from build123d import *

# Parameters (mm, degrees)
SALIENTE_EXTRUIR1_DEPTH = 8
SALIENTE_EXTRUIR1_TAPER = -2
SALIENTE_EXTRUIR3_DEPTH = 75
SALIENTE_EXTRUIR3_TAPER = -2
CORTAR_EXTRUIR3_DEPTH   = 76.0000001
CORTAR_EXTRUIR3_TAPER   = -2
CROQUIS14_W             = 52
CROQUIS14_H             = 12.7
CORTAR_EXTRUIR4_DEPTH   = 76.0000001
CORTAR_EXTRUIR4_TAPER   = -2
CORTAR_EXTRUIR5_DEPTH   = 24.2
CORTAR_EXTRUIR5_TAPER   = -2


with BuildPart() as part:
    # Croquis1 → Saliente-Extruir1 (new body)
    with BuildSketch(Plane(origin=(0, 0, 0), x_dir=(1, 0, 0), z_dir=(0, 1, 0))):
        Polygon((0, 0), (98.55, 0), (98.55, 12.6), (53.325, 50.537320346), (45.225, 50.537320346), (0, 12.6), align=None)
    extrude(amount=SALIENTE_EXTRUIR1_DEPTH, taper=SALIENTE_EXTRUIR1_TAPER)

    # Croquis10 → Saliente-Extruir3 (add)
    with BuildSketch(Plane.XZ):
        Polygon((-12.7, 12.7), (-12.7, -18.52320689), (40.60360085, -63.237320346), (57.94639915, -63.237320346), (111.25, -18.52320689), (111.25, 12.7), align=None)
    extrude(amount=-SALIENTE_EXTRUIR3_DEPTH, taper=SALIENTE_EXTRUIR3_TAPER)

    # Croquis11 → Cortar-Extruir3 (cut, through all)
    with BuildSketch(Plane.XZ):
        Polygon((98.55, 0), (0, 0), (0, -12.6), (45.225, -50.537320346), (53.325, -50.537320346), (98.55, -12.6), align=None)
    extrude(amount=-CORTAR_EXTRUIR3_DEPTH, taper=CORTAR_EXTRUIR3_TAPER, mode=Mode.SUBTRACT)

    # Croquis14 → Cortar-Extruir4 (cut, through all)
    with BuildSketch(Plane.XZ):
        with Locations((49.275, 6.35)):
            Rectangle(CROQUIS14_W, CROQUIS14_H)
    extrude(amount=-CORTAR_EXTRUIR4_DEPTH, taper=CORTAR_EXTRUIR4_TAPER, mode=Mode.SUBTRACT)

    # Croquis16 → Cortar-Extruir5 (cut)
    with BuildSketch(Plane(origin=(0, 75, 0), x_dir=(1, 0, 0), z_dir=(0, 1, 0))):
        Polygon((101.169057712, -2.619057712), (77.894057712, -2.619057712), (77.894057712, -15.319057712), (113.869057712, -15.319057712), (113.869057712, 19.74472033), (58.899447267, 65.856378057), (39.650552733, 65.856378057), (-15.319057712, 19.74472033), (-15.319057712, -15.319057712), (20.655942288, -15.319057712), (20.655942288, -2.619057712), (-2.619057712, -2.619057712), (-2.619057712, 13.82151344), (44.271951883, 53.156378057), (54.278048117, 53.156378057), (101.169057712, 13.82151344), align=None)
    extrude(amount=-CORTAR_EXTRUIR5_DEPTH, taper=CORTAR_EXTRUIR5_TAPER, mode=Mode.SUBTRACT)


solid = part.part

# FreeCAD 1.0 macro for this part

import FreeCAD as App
import Part
import Sketcher

V = App.Vector

doc = App.newDocument("Part")
body = doc.addObject("PartDesign::Body", "Body")

# Sketch on XZ plane
sketch1 = body.newObject("Sketcher::SketchObject", "Sketch")
sketch1.AttachmentSupport = (doc.getObject("XZ_Plane"), [""])
sketch1.MapMode = "FlatFace"
sketch1.addGeometry([
    Part.LineSegment(V(0, 0, 0), V(99, 0, 0)),  # 0
    Part.LineSegment(V(99, 0, 0), V(99, -13, 0)),  # 1
    Part.LineSegment(V(99, -13, 0), V(53, -51, 0)),  # 2
    Part.LineSegment(V(53, -51, 0), V(45, -51, 0)),  # 3
    Part.LineSegment(V(45, -51, 0), V(0, -13, 0)),  # 4
    Part.LineSegment(V(0, -13, 0), V(0, 0, 0)),  # 5
], False)
sketch1.addConstraint([
    Sketcher.Constraint("Coincident", 0, 2, 1, 1),
    Sketcher.Constraint("Coincident", 1, 2, 2, 1),
    Sketcher.Constraint("Coincident", 2, 2, 3, 1),
    Sketcher.Constraint("Coincident", 3, 2, 4, 1),
    Sketcher.Constraint("Coincident", 4, 2, 5, 1),
    Sketcher.Constraint("Coincident", 5, 2, 0, 1),
    Sketcher.Constraint("Horizontal", 0),
    Sketcher.Constraint("Vertical", 1),
    Sketcher.Constraint("Horizontal", 3),
    Sketcher.Constraint("Vertical", 5),
    Sketcher.Constraint("Coincident", 5, 2, -1, 1),
    Sketcher.Constraint("Horizontal", 1, 2, 4, 2),
    Sketcher.Constraint("Equal", 2, 4),
    Sketcher.Constraint("DistanceX", 3, 2, 3, 1, 8.1),
    Sketcher.Constraint("DistanceY", 1, 2, 1, 1, 12.6),
    Sketcher.Constraint("DistanceX", 0, 1, 0, 2, 98.55),
    Sketcher.Constraint("Distance", 2, 59.03),
])
pad1 = body.newObject("PartDesign::Pad", "Pad")
pad1.Profile = sketch1
pad1.Length = 8
pad1.Reversed = True
pad1.TaperAngle = 2

# Sketch on XZ plane
sketch2 = body.newObject("Sketcher::SketchObject", "Sketch001")
sketch2.AttachmentSupport = (doc.getObject("XZ_Plane"), [""])
sketch2.MapMode = "FlatFace"
sketch2.addGeometry([
    Part.LineSegment(V(-13, 13, 0), V(-13, -19, 0)),  # 0
    Part.LineSegment(V(-13, -19, 0), V(41, -63, 0)),  # 1
    Part.LineSegment(V(41, -63, 0), V(58, -63, 0)),  # 2
    Part.LineSegment(V(58, -63, 0), V(111, -19, 0)),  # 3
    Part.LineSegment(V(111, -19, 0), V(111, 13, 0)),  # 4
    Part.LineSegment(V(111, 13, 0), V(-13, 13, 0)),  # 5
], False)
sketch2.addConstraint([
    Sketcher.Constraint("Coincident", 0, 2, 1, 1),
    Sketcher.Constraint("Coincident", 1, 2, 2, 1),
    Sketcher.Constraint("Coincident", 2, 2, 3, 1),
    Sketcher.Constraint("Coincident", 3, 2, 4, 1),
    Sketcher.Constraint("Coincident", 4, 2, 5, 1),
    Sketcher.Constraint("Coincident", 5, 2, 0, 1),
    Sketcher.Constraint("Vertical", 0),
    Sketcher.Constraint("Horizontal", 2),
    Sketcher.Constraint("Vertical", 4),
    Sketcher.Constraint("Horizontal", 5),
    Sketcher.Constraint("Horizontal", 0, 2, 3, 2),
    Sketcher.Constraint("Equal", 1, 3),
    Sketcher.Constraint("DistanceX", 5, 2, 5, 1, 123.95),
    Sketcher.Constraint("DistanceX", 0, 2, -1, 1, 12.7),
    Sketcher.Constraint("DistanceY", -1, 1, 4, 2, 12.7),
    Sketcher.Constraint("DistanceX", 2, 1, 2, 2, 17.342798),
    Sketcher.Constraint("DistanceY", 0, 2, 0, 1, 31.223207),
    Sketcher.Constraint("DistanceY", 1, 2, -1, 1, 63.23732),
])
pad2 = body.newObject("PartDesign::Pad", "Pad001")
pad2.Profile = sketch2
pad2.Length = 75
pad2.Reversed = True
pad2.TaperAngle = 2

# Sketch on XZ plane
sketch3 = body.newObject("Sketcher::SketchObject", "Sketch002")
sketch3.AttachmentSupport = (doc.getObject("XZ_Plane"), [""])
sketch3.MapMode = "FlatFace"
sketch3.addGeometry([
    Part.LineSegment(V(99, 0, 0), V(0, 0, 0)),  # 0
    Part.LineSegment(V(0, 0, 0), V(0, -13, 0)),  # 1
    Part.LineSegment(V(0, -13, 0), V(45, -51, 0)),  # 2
    Part.LineSegment(V(45, -51, 0), V(53, -51, 0)),  # 3
    Part.LineSegment(V(53, -51, 0), V(99, -13, 0)),  # 4
    Part.LineSegment(V(99, -13, 0), V(99, 0, 0)),  # 5
], False)
sketch3.addConstraint([
    Sketcher.Constraint("Coincident", 0, 2, 1, 1),
    Sketcher.Constraint("Coincident", 1, 2, 2, 1),
    Sketcher.Constraint("Coincident", 2, 2, 3, 1),
    Sketcher.Constraint("Coincident", 3, 2, 4, 1),
    Sketcher.Constraint("Coincident", 4, 2, 5, 1),
    Sketcher.Constraint("Coincident", 5, 2, 0, 1),
    Sketcher.Constraint("Horizontal", 0),
    Sketcher.Constraint("Vertical", 1),
    Sketcher.Constraint("Horizontal", 3),
    Sketcher.Constraint("Vertical", 5),
    Sketcher.Constraint("Coincident", 0, 2, -1, 1),
    Sketcher.Constraint("Horizontal", 1, 2, 4, 2),
    Sketcher.Constraint("Equal", 2, 4),
    Sketcher.Constraint("DistanceX", 3, 1, 3, 2, 8.1),
    Sketcher.Constraint("DistanceY", 1, 2, 1, 1, 12.6),
    Sketcher.Constraint("DistanceX", 0, 2, 0, 1, 98.55),
    Sketcher.Constraint("Distance", 2, 59.03),
])
pocket1 = body.newObject("PartDesign::Pocket", "Pocket")
pocket1.Profile = sketch3
pocket1.Length = 76
pocket1.TaperAngle = 2

# Sketch on XZ plane
sketch4 = body.newObject("Sketcher::SketchObject", "Sketch003")
sketch4.AttachmentSupport = (doc.getObject("XZ_Plane"), [""])
sketch4.MapMode = "FlatFace"
sketch4.addGeometry([
    Part.LineSegment(V(23, 13, 0), V(23, 0, 0)),
    Part.LineSegment(V(23, 0, 0), V(75, 0, 0)),
    Part.LineSegment(V(75, 0, 0), V(75, 13, 0)),
    Part.LineSegment(V(75, 13, 0), V(23, 13, 0)),
], False)
sketch4.addConstraint([
    Sketcher.Constraint("Coincident", 0, 2, 1, 1),
    Sketcher.Constraint("Coincident", 1, 2, 2, 1),
    Sketcher.Constraint("Coincident", 2, 2, 3, 1),
    Sketcher.Constraint("Coincident", 3, 2, 0, 1),
    Sketcher.Constraint("Vertical", 0),
    Sketcher.Constraint("Horizontal", 1),
    Sketcher.Constraint("Vertical", 2),
    Sketcher.Constraint("Horizontal", 3),
    Sketcher.Constraint("PointOnObject", 0, 2, -1),
    Sketcher.Constraint("DistanceX", 1, 1, 1, 2, 52.0),
    Sketcher.Constraint("DistanceY", 0, 2, 0, 1, 12.7),
    Sketcher.Constraint("DistanceX", -1, 1, 0, 2, 23.275),
])
pocket2 = body.newObject("PartDesign::Pocket", "Pocket001")
pocket2.Profile = sketch4
pocket2.Length = 76
pocket2.TaperAngle = 2

# Sketch on XZ plane
sketch5 = body.newObject("Sketcher::SketchObject", "Sketch004")
sketch5.AttachmentSupport = (doc.getObject("XZ_Plane"), [""])
sketch5.MapMode = "FlatFace"
sketch5.AttachmentOffset = App.Placement(V(0, 0, -75), App.Rotation())
sketch5.addGeometry([
    Part.LineSegment(V(101, 3, 0), V(78, 3, 0)),  # 0
    Part.LineSegment(V(78, 3, 0), V(78, 15, 0)),  # 1
    Part.LineSegment(V(78, 15, 0), V(114, 15, 0)),  # 2
    Part.LineSegment(V(114, 15, 0), V(114, -20, 0)),  # 3
    Part.LineSegment(V(114, -20, 0), V(59, -66, 0)),  # 4
    Part.LineSegment(V(59, -66, 0), V(40, -66, 0)),  # 5
    Part.LineSegment(V(40, -66, 0), V(-15, -20, 0)),  # 6
    Part.LineSegment(V(-15, -20, 0), V(-15, 15, 0)),  # 7
    Part.LineSegment(V(-15, 15, 0), V(21, 15, 0)),  # 8
    Part.LineSegment(V(21, 15, 0), V(21, 3, 0)),  # 9
    Part.LineSegment(V(21, 3, 0), V(-3, 3, 0)),  # 10
    Part.LineSegment(V(-3, 3, 0), V(-3, -14, 0)),  # 11
    Part.LineSegment(V(-3, -14, 0), V(44, -53, 0)),  # 12
    Part.LineSegment(V(44, -53, 0), V(54, -53, 0)),  # 13
    Part.LineSegment(V(54, -53, 0), V(101, -14, 0)),  # 14
    Part.LineSegment(V(101, -14, 0), V(101, 3, 0)),  # 15
], False)
sketch5.addConstraint([
    Sketcher.Constraint("Coincident", 0, 2, 1, 1),
    Sketcher.Constraint("Coincident", 1, 2, 2, 1),
    Sketcher.Constraint("Coincident", 2, 2, 3, 1),
    Sketcher.Constraint("Coincident", 3, 2, 4, 1),
    Sketcher.Constraint("Coincident", 4, 2, 5, 1),
    Sketcher.Constraint("Coincident", 5, 2, 6, 1),
    Sketcher.Constraint("Coincident", 6, 2, 7, 1),
    Sketcher.Constraint("Coincident", 7, 2, 8, 1),
    Sketcher.Constraint("Coincident", 8, 2, 9, 1),
    Sketcher.Constraint("Coincident", 9, 2, 10, 1),
    Sketcher.Constraint("Coincident", 10, 2, 11, 1),
    Sketcher.Constraint("Coincident", 11, 2, 12, 1),
    Sketcher.Constraint("Coincident", 12, 2, 13, 1),
    Sketcher.Constraint("Coincident", 13, 2, 14, 1),
    Sketcher.Constraint("Coincident", 14, 2, 15, 1),
    Sketcher.Constraint("Coincident", 15, 2, 0, 1),
    Sketcher.Constraint("Horizontal", 0),
    Sketcher.Constraint("Vertical", 1),
    Sketcher.Constraint("Horizontal", 2),
    Sketcher.Constraint("Vertical", 3),
    Sketcher.Constraint("Horizontal", 5),
    Sketcher.Constraint("Vertical", 7),
    Sketcher.Constraint("Horizontal", 8),
    Sketcher.Constraint("Vertical", 9),
    Sketcher.Constraint("Horizontal", 10),
    Sketcher.Constraint("Vertical", 11),
    Sketcher.Constraint("Horizontal", 13),
    Sketcher.Constraint("Vertical", 15),
    Sketcher.Constraint("Parallel", 6, 12),
    Sketcher.Constraint("Parallel", 4, 14),
    Sketcher.Constraint("Horizontal", 3, 2, 6, 2),
    Sketcher.Constraint("Horizontal", 2, 2, 7, 2),
    Sketcher.Constraint("Horizontal", 0, 2, 9, 2),
    Sketcher.Constraint("Horizontal", 11, 2, 14, 2),
    Sketcher.Constraint("Equal", 2, 8),
    Sketcher.Constraint("Equal", 0, 10),
    Sketcher.Constraint("Equal", 4, 6),
    Sketcher.Constraint("DistanceY", 1, 1, 1, 2, 12.7),
    Sketcher.Constraint("DistanceX", 7, 2, 10, 2, 12.7),
    Sketcher.Constraint("DistanceY", 5, 2, 12, 2, 12.7),
    Sketcher.Constraint("DistanceX", 0, 2, 0, 1, 23.275),
    Sketcher.Constraint("DistanceY", 3, 2, 3, 1, 35.063778),
    Sketcher.Constraint("DistanceY", 11, 2, 11, 1, 16.440571),
    Sketcher.Constraint("DistanceX", 5, 2, 12, 2, 4.621399),
    Sketcher.Constraint("Distance", 12, 61.204562),
    Sketcher.Constraint("DistanceX", 5, 2, 5, 1, 19.248895),
    Sketcher.Constraint("DistanceY", 3, 2, -1, 1, 19.74472),
    Sketcher.Constraint("DistanceX", -1, 1, 12, 2, 44.271952),
])
pocket3 = body.newObject("PartDesign::Pocket", "Pocket002")
pocket3.Profile = sketch5
pocket3.Length = 24.2
pocket3.Reversed = True
pocket3.TaperAngle = 2

doc.recompute()
